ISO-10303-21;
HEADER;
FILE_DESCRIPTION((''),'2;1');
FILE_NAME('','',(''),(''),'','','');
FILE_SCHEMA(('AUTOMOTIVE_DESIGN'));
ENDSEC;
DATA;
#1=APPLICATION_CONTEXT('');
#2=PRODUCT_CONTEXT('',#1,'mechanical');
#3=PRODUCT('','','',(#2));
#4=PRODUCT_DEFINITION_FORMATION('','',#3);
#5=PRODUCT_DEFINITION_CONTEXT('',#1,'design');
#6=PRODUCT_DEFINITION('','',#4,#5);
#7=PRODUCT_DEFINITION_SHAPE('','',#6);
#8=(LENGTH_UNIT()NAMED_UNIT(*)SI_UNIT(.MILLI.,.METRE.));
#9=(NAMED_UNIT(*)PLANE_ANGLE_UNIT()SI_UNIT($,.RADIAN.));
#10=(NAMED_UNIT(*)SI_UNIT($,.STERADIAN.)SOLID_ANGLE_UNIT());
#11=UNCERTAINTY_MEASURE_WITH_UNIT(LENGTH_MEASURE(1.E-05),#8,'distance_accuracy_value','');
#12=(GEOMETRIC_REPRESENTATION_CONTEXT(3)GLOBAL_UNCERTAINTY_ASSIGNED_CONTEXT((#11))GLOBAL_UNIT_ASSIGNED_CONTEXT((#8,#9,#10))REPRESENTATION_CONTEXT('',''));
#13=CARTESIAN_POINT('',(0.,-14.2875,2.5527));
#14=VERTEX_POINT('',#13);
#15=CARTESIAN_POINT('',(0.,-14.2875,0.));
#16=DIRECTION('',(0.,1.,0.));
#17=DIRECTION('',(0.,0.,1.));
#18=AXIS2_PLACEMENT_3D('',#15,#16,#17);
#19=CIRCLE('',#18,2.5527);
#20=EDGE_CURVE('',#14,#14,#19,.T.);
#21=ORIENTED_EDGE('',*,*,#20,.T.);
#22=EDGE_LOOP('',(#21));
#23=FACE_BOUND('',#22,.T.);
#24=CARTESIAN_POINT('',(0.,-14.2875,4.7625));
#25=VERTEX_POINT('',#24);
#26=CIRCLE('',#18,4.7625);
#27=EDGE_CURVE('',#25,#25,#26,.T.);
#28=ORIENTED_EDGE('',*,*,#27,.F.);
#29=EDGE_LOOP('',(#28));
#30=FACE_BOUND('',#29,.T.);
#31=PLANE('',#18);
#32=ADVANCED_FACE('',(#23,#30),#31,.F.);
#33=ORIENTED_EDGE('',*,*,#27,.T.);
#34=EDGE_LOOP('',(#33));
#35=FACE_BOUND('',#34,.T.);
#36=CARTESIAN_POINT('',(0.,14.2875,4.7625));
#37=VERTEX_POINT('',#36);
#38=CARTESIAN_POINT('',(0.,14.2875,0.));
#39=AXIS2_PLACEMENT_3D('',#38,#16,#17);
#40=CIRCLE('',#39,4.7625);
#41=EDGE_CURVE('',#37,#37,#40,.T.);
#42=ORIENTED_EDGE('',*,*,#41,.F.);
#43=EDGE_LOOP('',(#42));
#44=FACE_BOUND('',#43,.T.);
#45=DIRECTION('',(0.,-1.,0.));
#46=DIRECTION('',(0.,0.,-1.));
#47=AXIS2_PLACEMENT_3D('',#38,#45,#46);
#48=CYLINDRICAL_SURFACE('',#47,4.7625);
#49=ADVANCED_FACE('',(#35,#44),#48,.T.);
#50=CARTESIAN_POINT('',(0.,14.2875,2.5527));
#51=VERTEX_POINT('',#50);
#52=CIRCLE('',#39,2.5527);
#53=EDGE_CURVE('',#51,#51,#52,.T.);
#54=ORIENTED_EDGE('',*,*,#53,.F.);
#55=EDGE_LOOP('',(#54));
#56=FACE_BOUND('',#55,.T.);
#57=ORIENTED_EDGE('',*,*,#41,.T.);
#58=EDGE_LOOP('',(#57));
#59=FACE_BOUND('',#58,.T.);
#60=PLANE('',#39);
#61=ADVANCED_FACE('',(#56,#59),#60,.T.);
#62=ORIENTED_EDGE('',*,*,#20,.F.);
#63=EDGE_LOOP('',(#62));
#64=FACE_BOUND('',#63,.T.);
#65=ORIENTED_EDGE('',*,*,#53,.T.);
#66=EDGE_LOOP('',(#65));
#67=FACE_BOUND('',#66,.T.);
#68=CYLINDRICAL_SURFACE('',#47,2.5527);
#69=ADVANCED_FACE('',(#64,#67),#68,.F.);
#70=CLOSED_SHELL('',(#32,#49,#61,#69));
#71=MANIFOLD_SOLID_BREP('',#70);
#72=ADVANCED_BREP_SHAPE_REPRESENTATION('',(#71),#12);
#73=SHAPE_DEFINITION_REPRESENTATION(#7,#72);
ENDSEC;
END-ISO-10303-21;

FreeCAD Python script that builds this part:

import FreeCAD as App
import Part
import Sketcher

V = App.Vector
Q = App.Units.Quantity

doc = App.newDocument("Part")
body = doc.addObject("PartDesign::Body", "Body")

# Sketch on XZ plane
sketch1 = doc.addObject("Sketcher::SketchObject", "Sketch")
body.addObject(sketch1)
sketch1.AttachmentSupport = (doc.XZ_Plane, [""])
sketch1.MapMode = "FlatFace"
sketch1.addGeometry(Part.Circle(V(0, 0, 0), V(0, 0, 1), 4.7625), False)
sketch1.addGeometry(Part.Circle(V(0, 0, 0), V(0, 0, 1), 2.5527), False)
sketch1.addConstraint(Sketcher.Constraint("Coincident", 0, 3, -1, 1))
sketch1.addConstraint(Sketcher.Constraint("Coincident", 1, 3, -1, 1))
sketch1.addConstraint(Sketcher.Constraint("Diameter", 0, Q("0.375 in")))
sketch1.addConstraint(Sketcher.Constraint("Diameter", 1, Q("0.201 in")))
pad1 = doc.addObject("PartDesign::Pad", "Pad")
body.addObject(pad1)
pad1.Profile = sketch1
pad1.Length = Q("1.125 in")
pad1.Midplane = True

doc.recompute()
